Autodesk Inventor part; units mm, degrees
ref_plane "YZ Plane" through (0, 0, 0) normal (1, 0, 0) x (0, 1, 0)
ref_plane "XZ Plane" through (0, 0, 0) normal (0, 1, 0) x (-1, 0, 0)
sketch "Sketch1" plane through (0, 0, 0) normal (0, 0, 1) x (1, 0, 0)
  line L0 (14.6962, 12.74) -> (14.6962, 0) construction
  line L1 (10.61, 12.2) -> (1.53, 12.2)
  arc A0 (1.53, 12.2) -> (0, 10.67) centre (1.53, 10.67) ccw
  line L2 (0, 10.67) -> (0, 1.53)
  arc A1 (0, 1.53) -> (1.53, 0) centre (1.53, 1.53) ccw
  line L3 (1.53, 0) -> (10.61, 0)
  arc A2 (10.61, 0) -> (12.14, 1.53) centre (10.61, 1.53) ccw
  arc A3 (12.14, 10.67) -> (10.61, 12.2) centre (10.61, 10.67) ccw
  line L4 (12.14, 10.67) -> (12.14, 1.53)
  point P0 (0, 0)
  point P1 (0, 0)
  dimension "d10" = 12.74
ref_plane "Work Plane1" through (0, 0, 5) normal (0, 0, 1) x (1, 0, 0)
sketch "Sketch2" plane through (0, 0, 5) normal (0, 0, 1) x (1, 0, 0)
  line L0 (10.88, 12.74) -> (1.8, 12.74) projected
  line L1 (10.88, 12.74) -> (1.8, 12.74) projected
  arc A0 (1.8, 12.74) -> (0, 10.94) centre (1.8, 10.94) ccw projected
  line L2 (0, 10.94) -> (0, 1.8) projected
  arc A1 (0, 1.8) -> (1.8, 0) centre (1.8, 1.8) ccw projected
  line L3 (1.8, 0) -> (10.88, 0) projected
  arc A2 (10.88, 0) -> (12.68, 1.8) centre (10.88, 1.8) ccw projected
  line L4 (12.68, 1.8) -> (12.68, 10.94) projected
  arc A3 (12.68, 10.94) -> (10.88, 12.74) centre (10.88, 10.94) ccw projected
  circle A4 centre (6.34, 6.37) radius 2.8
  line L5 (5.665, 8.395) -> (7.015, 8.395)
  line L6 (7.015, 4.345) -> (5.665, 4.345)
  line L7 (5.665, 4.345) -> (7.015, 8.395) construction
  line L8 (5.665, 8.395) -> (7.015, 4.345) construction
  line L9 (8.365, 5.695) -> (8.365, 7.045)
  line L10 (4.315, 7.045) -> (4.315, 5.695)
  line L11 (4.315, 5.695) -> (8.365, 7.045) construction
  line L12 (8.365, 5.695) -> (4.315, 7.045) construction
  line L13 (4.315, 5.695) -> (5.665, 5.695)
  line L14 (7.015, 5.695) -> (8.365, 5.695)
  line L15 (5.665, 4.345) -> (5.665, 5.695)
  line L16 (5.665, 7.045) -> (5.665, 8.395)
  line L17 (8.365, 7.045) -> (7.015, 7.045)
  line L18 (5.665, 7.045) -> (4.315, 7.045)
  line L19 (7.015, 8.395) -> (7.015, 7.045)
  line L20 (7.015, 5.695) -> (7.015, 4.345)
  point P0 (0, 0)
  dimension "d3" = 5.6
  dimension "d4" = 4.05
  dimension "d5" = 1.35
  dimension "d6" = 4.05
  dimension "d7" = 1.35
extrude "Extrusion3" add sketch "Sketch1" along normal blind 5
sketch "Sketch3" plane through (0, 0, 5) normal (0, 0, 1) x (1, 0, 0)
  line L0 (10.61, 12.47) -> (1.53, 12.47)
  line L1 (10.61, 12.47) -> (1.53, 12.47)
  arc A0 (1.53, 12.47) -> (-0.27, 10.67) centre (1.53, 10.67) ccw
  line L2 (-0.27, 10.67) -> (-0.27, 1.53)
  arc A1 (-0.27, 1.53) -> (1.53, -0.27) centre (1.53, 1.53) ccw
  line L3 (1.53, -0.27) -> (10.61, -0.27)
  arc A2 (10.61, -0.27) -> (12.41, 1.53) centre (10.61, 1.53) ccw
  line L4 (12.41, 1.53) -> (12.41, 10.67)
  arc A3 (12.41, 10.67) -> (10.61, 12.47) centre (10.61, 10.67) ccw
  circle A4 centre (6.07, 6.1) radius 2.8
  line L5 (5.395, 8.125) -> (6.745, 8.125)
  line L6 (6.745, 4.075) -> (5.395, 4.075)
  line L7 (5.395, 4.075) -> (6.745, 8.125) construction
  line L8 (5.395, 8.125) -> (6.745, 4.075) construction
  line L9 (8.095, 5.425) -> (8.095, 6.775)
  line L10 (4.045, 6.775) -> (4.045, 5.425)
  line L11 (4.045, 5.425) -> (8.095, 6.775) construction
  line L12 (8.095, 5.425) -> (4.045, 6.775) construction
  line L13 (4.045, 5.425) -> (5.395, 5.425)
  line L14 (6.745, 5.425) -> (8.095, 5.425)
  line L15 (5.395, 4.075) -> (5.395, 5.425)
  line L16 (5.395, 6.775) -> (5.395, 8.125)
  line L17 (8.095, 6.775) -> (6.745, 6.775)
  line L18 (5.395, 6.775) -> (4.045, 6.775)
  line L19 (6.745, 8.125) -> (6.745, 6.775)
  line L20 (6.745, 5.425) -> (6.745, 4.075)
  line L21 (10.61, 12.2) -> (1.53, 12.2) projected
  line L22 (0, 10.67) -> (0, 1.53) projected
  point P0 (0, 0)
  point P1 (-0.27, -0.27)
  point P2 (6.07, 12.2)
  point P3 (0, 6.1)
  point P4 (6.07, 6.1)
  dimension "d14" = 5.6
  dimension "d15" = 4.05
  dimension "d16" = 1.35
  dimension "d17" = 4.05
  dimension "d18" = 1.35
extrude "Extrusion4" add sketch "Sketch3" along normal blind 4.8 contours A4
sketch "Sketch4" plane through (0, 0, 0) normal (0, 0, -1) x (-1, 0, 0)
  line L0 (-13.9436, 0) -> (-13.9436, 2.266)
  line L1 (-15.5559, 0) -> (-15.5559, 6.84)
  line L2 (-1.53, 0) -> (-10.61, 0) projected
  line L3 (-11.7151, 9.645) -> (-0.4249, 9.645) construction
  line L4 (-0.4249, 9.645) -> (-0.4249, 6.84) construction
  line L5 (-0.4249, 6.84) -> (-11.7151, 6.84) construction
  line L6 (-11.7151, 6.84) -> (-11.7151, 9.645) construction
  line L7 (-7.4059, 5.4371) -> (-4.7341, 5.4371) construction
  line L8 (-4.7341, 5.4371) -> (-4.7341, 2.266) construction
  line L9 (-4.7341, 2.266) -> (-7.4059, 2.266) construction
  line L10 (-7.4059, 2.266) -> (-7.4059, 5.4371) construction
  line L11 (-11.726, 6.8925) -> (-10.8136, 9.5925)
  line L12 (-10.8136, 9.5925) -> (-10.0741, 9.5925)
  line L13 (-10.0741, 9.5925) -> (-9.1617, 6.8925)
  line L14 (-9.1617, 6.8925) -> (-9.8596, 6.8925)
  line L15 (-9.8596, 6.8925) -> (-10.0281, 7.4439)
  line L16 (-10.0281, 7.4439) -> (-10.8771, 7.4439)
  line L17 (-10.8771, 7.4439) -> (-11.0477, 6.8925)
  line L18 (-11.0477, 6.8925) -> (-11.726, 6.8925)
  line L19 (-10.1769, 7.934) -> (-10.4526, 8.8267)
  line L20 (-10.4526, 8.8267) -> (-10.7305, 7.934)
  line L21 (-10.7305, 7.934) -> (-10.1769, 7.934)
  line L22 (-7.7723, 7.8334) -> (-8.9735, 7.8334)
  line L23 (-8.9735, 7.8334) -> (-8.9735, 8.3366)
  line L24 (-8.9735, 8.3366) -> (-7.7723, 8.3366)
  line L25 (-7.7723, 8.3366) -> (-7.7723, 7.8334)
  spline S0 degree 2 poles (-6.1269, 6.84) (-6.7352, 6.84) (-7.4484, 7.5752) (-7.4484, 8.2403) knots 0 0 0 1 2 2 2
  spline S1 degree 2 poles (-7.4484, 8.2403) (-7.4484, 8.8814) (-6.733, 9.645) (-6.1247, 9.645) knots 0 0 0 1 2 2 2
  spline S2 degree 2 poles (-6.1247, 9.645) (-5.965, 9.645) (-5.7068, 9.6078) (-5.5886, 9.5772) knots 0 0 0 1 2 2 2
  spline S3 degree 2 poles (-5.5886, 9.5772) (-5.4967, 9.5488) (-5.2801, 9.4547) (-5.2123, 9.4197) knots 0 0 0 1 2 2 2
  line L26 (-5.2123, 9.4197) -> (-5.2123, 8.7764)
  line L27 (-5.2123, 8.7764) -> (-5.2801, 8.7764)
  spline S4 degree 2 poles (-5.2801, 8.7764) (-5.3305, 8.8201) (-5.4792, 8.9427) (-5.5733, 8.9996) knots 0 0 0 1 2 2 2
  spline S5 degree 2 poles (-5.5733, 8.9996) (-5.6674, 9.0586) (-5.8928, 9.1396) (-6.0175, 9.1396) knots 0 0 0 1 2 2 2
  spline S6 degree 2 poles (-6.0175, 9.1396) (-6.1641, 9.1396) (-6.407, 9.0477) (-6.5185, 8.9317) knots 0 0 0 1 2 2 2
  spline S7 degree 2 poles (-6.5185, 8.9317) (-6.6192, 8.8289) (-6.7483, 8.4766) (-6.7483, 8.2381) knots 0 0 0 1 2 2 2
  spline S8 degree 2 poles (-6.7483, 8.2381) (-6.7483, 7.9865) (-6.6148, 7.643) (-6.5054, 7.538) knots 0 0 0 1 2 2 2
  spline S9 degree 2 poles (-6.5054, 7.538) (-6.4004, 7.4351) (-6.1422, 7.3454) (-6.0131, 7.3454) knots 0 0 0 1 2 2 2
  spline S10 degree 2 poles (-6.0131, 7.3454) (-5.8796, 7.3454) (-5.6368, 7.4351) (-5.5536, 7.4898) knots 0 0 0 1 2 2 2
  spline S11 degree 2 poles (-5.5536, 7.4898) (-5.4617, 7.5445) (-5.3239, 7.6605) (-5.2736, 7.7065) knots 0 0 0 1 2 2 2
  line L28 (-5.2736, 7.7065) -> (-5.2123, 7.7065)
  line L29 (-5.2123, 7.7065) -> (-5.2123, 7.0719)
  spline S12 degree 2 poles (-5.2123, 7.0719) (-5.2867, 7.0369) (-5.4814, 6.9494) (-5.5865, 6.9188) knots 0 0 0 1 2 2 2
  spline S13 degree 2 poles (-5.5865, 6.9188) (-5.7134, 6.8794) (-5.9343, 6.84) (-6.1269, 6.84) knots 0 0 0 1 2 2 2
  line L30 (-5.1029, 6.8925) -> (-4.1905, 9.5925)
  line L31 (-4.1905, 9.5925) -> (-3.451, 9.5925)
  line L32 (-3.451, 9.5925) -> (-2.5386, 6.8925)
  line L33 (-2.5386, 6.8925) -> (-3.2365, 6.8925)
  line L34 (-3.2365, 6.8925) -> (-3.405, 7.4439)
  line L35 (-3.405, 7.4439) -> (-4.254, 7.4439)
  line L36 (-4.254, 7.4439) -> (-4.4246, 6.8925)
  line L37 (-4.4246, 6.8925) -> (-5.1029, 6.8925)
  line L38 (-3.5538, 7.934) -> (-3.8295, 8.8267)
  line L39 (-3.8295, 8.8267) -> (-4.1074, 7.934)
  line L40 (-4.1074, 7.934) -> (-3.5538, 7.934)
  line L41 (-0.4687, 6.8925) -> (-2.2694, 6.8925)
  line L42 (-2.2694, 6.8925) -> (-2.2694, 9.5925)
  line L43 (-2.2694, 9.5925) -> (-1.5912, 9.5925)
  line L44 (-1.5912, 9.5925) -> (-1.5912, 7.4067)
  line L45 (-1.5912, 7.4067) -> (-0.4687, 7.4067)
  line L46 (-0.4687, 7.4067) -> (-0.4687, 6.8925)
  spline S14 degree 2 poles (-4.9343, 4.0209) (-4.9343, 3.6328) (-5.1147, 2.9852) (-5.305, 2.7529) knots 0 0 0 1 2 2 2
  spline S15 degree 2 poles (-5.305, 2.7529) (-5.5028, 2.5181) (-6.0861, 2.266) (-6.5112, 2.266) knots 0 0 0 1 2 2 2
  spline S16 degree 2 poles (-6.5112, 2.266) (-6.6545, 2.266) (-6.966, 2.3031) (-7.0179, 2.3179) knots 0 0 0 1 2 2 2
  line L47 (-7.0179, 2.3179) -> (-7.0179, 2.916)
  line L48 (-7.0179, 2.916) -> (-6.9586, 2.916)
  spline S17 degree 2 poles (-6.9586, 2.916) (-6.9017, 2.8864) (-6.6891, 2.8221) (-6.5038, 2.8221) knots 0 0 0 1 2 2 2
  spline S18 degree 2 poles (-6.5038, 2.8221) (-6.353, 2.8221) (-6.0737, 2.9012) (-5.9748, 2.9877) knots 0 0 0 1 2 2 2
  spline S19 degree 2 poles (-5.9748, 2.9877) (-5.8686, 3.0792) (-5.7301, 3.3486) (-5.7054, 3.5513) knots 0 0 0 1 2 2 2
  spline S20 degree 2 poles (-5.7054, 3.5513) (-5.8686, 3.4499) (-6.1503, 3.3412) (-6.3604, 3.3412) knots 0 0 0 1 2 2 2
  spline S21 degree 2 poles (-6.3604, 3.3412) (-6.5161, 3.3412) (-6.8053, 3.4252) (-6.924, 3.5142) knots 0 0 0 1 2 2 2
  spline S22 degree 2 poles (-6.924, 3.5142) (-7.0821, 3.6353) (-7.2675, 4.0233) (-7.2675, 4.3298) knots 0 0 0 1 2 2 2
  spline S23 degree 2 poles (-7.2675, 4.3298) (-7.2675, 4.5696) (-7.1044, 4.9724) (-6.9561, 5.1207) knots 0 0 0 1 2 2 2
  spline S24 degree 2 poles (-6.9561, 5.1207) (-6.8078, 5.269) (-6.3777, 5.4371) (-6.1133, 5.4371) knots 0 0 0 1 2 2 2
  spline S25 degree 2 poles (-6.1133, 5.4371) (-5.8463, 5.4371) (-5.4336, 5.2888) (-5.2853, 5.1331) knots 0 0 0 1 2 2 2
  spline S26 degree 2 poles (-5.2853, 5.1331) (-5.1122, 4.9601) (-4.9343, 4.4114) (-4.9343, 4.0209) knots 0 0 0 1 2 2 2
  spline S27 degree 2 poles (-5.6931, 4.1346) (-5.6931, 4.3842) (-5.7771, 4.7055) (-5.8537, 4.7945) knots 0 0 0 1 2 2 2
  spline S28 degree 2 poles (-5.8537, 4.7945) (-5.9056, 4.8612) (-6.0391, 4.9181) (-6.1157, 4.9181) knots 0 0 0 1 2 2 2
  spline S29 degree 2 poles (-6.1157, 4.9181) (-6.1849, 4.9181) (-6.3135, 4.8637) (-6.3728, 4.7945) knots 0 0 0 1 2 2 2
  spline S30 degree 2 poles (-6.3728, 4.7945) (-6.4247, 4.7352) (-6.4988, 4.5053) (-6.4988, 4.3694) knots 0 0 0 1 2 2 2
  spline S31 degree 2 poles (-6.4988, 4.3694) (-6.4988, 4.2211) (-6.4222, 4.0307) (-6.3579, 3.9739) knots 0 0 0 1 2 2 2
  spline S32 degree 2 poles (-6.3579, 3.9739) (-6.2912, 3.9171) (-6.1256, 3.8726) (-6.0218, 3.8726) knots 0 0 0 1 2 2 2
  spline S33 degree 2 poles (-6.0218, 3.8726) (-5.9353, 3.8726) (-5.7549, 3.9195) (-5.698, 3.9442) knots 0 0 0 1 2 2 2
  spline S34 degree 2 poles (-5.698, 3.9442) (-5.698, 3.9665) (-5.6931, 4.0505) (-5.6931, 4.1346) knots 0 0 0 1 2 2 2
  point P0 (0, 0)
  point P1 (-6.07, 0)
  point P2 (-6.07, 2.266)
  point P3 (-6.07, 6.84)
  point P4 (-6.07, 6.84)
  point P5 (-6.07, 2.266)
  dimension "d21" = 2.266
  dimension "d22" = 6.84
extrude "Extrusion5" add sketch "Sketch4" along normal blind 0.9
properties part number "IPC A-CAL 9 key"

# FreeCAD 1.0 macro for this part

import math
import FreeCAD as App
import Part
import Sketcher
Q = App.Units.Quantity

doc = App.newDocument("Part")
body = doc.addObject("PartDesign::Body", "Body")

# Sketch on XY plane
sketch1 = body.newObject("Sketcher::SketchObject", "Sketch")
sketch1.AttachmentSupport = (doc.getObject("XY_Plane"), [""])
sketch1.MapMode = "FlatFace"
sketch1.addGeometry([
    Part.ArcOfCircle(Part.Circle(App.Vector(10.61, 10.67, 0), App.Vector(0, 0, 1), 1.53), math.radians(0), math.radians(90)),  # 0
    Part.LineSegment(App.Vector(10.61, 12.2, 0), App.Vector(1.53, 12.2, 0)),  # 1
    Part.ArcOfCircle(Part.Circle(App.Vector(1.53, 10.67, 0), App.Vector(0, 0, 1), 1.53), math.radians(90), math.radians(180)),  # 2
    Part.LineSegment(App.Vector(0, 10.67, 0), App.Vector(0, 1.53, 0)),  # 3
    Part.ArcOfCircle(Part.Circle(App.Vector(1.53, 1.53, 0), App.Vector(0, 0, 1), 1.53), math.radians(180), math.radians(270)),  # 4
    Part.LineSegment(App.Vector(1.53, 0, 0), App.Vector(10.61, 0, 0)),  # 5
    Part.ArcOfCircle(Part.Circle(App.Vector(10.61, 1.53, 0), App.Vector(0, 0, 1), 1.53), math.radians(-90), math.radians(0)),  # 6
    Part.LineSegment(App.Vector(12.14, 1.53, 0), App.Vector(12.14, 10.67, 0)),  # 7
], False)
sketch1.addConstraint([
    Sketcher.Constraint("Tangent", 0, 2, 1, 1),
    Sketcher.Constraint("Tangent", 1, 2, 2, 1),
    Sketcher.Constraint("Tangent", 2, 2, 3, 1),
    Sketcher.Constraint("Tangent", 3, 2, 4, 1),
    Sketcher.Constraint("Tangent", 4, 2, 5, 1),
    Sketcher.Constraint("Tangent", 5, 2, 6, 1),
    Sketcher.Constraint("Tangent", 6, 2, 7, 1),
    Sketcher.Constraint("Tangent", 7, 2, 0, 1),
    Sketcher.Constraint("Horizontal", 1),
    Sketcher.Constraint("Vertical", 3),
    Sketcher.Constraint("Horizontal", 5),
    Sketcher.Constraint("Vertical", 7),
    Sketcher.Constraint("Equal", 0, 2),
    Sketcher.Constraint("Equal", 2, 4),
    Sketcher.Constraint("Equal", 4, 6),
    Sketcher.Constraint("PointOnObject", 2, 2, -2),
    Sketcher.Constraint("PointOnObject", 4, 2, -1),
    Sketcher.Constraint("Radius", 0, Q("1.53 mm")),
    Sketcher.Constraint("DistanceX", 1, 2, 1, 1, Q("9.08 mm")),
    Sketcher.Constraint("DistanceY", 3, 2, 3, 1, Q("9.14 mm")),
])
pad1 = body.newObject("PartDesign::Pad", "Pad")
pad1.Profile = sketch1
pad1.Length = 5

# Sketch on XY plane
sketch2 = body.newObject("Sketcher::SketchObject", "Sketch001")
sketch2.AttachmentSupport = (doc.getObject("XY_Plane"), [""])
sketch2.MapMode = "FlatFace"
sketch2.AttachmentOffset = App.Placement(App.Vector(0, 0, 5), App.Rotation())
sketch2.addGeometry([
    Part.Circle(App.Vector(6.07, 6.1, 0), App.Vector(0, 0, 1), 2.8),  # 0
    Part.LineSegment(App.Vector(5.395, 6.775, 0), App.Vector(5.395, 8.125, 0)),  # 1
    Part.LineSegment(App.Vector(5.395, 8.125, 0), App.Vector(6.745, 8.125, 0)),  # 2
    Part.LineSegment(App.Vector(6.745, 8.125, 0), App.Vector(6.745, 6.775, 0)),  # 3
    Part.LineSegment(App.Vector(6.745, 6.775, 0), App.Vector(8.095, 6.775, 0)),  # 4
    Part.LineSegment(App.Vector(8.095, 6.775, 0), App.Vector(8.095, 5.425, 0)),  # 5
    Part.LineSegment(App.Vector(8.095, 5.425, 0), App.Vector(6.745, 5.425, 0)),  # 6
    Part.LineSegment(App.Vector(6.745, 5.425, 0), App.Vector(6.745, 4.075, 0)),  # 7
    Part.LineSegment(App.Vector(6.745, 4.075, 0), App.Vector(5.395, 4.075, 0)),  # 8
    Part.LineSegment(App.Vector(5.395, 4.075, 0), App.Vector(5.395, 5.425, 0)),  # 9
    Part.LineSegment(App.Vector(5.395, 5.425, 0), App.Vector(4.045, 5.425, 0)),  # 10
    Part.LineSegment(App.Vector(4.045, 5.425, 0), App.Vector(4.045, 6.775, 0)),  # 11
    Part.LineSegment(App.Vector(4.045, 6.775, 0), App.Vector(5.395, 6.775, 0)),  # 12
], False)
sketch2.addConstraint([
    Sketcher.Constraint("Coincident", 1, 2, 2, 1),
    Sketcher.Constraint("Coincident", 2, 2, 3, 1),
    Sketcher.Constraint("Coincident", 3, 2, 4, 1),
    Sketcher.Constraint("Coincident", 4, 2, 5, 1),
    Sketcher.Constraint("Coincident", 5, 2, 6, 1),
    Sketcher.Constraint("Coincident", 6, 2, 7, 1),
    Sketcher.Constraint("Coincident", 7, 2, 8, 1),
    Sketcher.Constraint("Coincident", 8, 2, 9, 1),
    Sketcher.Constraint("Coincident", 9, 2, 10, 1),
    Sketcher.Constraint("Coincident", 10, 2, 11, 1),
    Sketcher.Constraint("Coincident", 11, 2, 12, 1),
    Sketcher.Constraint("Coincident", 12, 2, 1, 1),
    Sketcher.Constraint("Vertical", 1),
    Sketcher.Constraint("Horizontal", 2),
    Sketcher.Constraint("Vertical", 3),
    Sketcher.Constraint("Horizontal", 4),
    Sketcher.Constraint("Vertical", 5),
    Sketcher.Constraint("Horizontal", 6),
    Sketcher.Constraint("Vertical", 7),
    Sketcher.Constraint("Horizontal", 8),
    Sketcher.Constraint("Vertical", 9),
    Sketcher.Constraint("Horizontal", 10),
    Sketcher.Constraint("Vertical", 11),
    Sketcher.Constraint("Horizontal", 12),
    Sketcher.Constraint("Horizontal", 6, 2, 9, 2),
    Sketcher.Constraint("Horizontal", 4, 2, 11, 2),
    Sketcher.Constraint("Vertical", 3, 2, 6, 2),
    Sketcher.Constraint("Vertical", 1, 2, 8, 2),
    Sketcher.Constraint("Equal", 2, 4),
    Sketcher.Constraint("Equal", 8, 10),
    Sketcher.Constraint("Equal", 12, 1),
    Sketcher.Constraint("Equal", 3, 5),
    Sketcher.Constraint("Equal", 5, 7),
    Sketcher.Constraint("Diameter", 0, Q("5.6 mm")),
    Sketcher.Constraint("DistanceX", 2, 1, 2, 2, Q("1.35 mm")),
    Sketcher.Constraint("DistanceY", -1, 1, 0, 3, Q("6.1 mm")),
    Sketcher.Constraint("DistanceX", -1, 1, 0, 3, Q("6.07 mm")),
    Sketcher.Constraint("DistanceX", -1, 1, 1, 2, Q("5.395 mm")),
    Sketcher.Constraint("DistanceY", -1, 1, 1, 2, Q("8.125 mm")),
])
pad2 = body.newObject("PartDesign::Pad", "Pad001")
pad2.Profile = sketch2
pad2.Length = 4.8

# Sketch on XY plane
sketch3 = body.newObject("Sketcher::SketchObject", "Sketch002")
sketch3.AttachmentSupport = (doc.getObject("XY_Plane"), [""])
sketch3.MapMode = "FlatFace"
sketch3.addGeometry([
    Part.LineSegment(App.Vector(10.8136, 9.5925, 0), App.Vector(11.726, 6.8925, 0)),  # 0
    Part.LineSegment(App.Vector(11.726, 6.8925, 0), App.Vector(11.0477, 6.8925, 0)),  # 1
    Part.LineSegment(App.Vector(11.0477, 6.8925, 0), App.Vector(10.8771, 7.4439, 0)),  # 2
    Part.LineSegment(App.Vector(10.8771, 7.4439, 0), App.Vector(10.0281, 7.4439, 0)),  # 3
    Part.LineSegment(App.Vector(10.0281, 7.4439, 0), App.Vector(9.8596, 6.8925, 0)),  # 4
    Part.LineSegment(App.Vector(9.8596, 6.8925, 0), App.Vector(9.1617, 6.8925, 0)),  # 5
    Part.LineSegment(App.Vector(9.1617, 6.8925, 0), App.Vector(10.0741, 9.5925, 0)),  # 6
    Part.LineSegment(App.Vector(10.0741, 9.5925, 0), App.Vector(10.8136, 9.5925, 0)),  # 7
    Part.LineSegment(App.Vector(10.4526, 8.8267, 0), App.Vector(10.1769, 7.934, 0)),  # 8
    Part.LineSegment(App.Vector(10.1769, 7.934, 0), App.Vector(10.7305, 7.934, 0)),  # 9
    Part.LineSegment(App.Vector(10.7305, 7.934, 0), App.Vector(10.4526, 8.8267, 0)),  # 10
    Part.LineSegment(App.Vector(8.9735, 7.8334, 0), App.Vector(7.7723, 7.8334, 0)),  # 11
    Part.LineSegment(App.Vector(7.7723, 7.8334, 0), App.Vector(7.7723, 8.3366, 0)),  # 12
    Part.LineSegment(App.Vector(7.7723, 8.3366, 0), App.Vector(8.9735, 8.3366, 0)),  # 13
    Part.LineSegment(App.Vector(8.9735, 8.3366, 0), App.Vector(8.9735, 7.8334, 0)),  # 14
    Part.BSplineCurve([App.Vector(6.1269, 6.84, 0), App.Vector(6.7352, 6.84, 0), App.Vector(7.4484, 7.5752, 0), App.Vector(7.4484, 8.2403, 0)], [3, 1, 3], [0, 1, 2], False, 2, [1, 1, 1, 1], False),  # 15
    Part.BSplineCurve([App.Vector(5.5865, 6.9188, 0), App.Vector(5.7134, 6.8794, 0), App.Vector(5.9343, 6.84, 0), App.Vector(6.1269, 6.84, 0)], [3, 1, 3], [0, 1, 2], False, 2, [1, 1, 1, 1], False),  # 16
    Part.BSplineCurve([App.Vector(5.2123, 7.0719, 0), App.Vector(5.2867, 7.0369, 0), App.Vector(5.4814, 6.9494, 0), App.Vector(5.5865, 6.9188, 0)], [3, 1, 3], [0, 1, 2], False, 2, [1, 1, 1, 1], False),  # 17
    Part.LineSegment(App.Vector(5.2123, 7.0719, 0), App.Vector(5.2123, 7.7065, 0)),  # 18
    Part.LineSegment(App.Vector(5.2123, 7.7065, 0), App.Vector(5.2736, 7.7065, 0)),  # 19
    Part.BSplineCurve([App.Vector(5.5536, 7.4898, 0), App.Vector(5.4617, 7.5445, 0), App.Vector(5.3239, 7.6605, 0), App.Vector(5.2736, 7.7065, 0)], [3, 1, 3], [0, 1, 2], False, 2, [1, 1, 1, 1], False),  # 20
    Part.BSplineCurve([App.Vector(6.0131, 7.3454, 0), App.Vector(5.8796, 7.3454, 0), App.Vector(5.6368, 7.4351, 0), App.Vector(5.5536, 7.4898, 0)], [3, 1, 3], [0, 1, 2], False, 2, [1, 1, 1, 1], False),  # 21
    Part.BSplineCurve([App.Vector(6.5054, 7.538, 0), App.Vector(6.4004, 7.4351, 0), App.Vector(6.1422, 7.3454, 0), App.Vector(6.0131, 7.3454, 0)], [3, 1, 3], [0, 1, 2], False, 2, [1, 1, 1, 1], False),  # 22
    Part.BSplineCurve([App.Vector(6.7483, 8.2381, 0), App.Vector(6.7483, 7.9865, 0), App.Vector(6.6148, 7.643, 0), App.Vector(6.5054, 7.538, 0)], [3, 1, 3], [0, 1, 2], False, 2, [1, 1, 1, 1], False),  # 23
    Part.BSplineCurve([App.Vector(6.5185, 8.9317, 0), App.Vector(6.6192, 8.8289, 0), App.Vector(6.7483, 8.4766, 0), App.Vector(6.7483, 8.2381, 0)], [3, 1, 3], [0, 1, 2], False, 2, [1, 1, 1, 1], False),  # 24
    Part.BSplineCurve([App.Vector(6.0175, 9.1396, 0), App.Vector(6.1641, 9.1396, 0), App.Vector(6.407, 9.0477, 0), App.Vector(6.5185, 8.9317, 0)], [3, 1, 3], [0, 1, 2], False, 2, [1, 1, 1, 1], False),  # 25
    Part.BSplineCurve([App.Vector(5.5733, 8.9996, 0), App.Vector(5.6674, 9.0586, 0), App.Vector(5.8928, 9.1396, 0), App.Vector(6.0175, 9.1396, 0)], [3, 1, 3], [0, 1, 2], False, 2, [1, 1, 1, 1], False),  # 26
    Part.BSplineCurve([App.Vector(5.2801, 8.7764, 0), App.Vector(5.3305, 8.8201, 0), App.Vector(5.4792, 8.9427, 0), App.Vector(5.5733, 8.9996, 0)], [3, 1, 3], [0, 1, 2], False, 2, [1, 1, 1, 1], False),  # 27
    Part.LineSegment(App.Vector(5.2801, 8.7764, 0), App.Vector(5.2123, 8.7764, 0)),  # 28
    Part.LineSegment(App.Vector(5.2123, 8.7764, 0), App.Vector(5.2123, 9.4197, 0)),  # 29
    Part.BSplineCurve([App.Vector(5.5886, 9.5772, 0), App.Vector(5.4967, 9.5488, 0), App.Vector(5.2801, 9.4547, 0), App.Vector(5.2123, 9.4197, 0)], [3, 1, 3], [0, 1, 2], False, 2, [1, 1, 1, 1], False),  # 30
    Part.BSplineCurve([App.Vector(6.1247, 9.645, 0), App.Vector(5.965, 9.645, 0), App.Vector(5.7068, 9.6078, 0), App.Vector(5.5886, 9.5772, 0)], [3, 1, 3], [0, 1, 2], False, 2, [1, 1, 1, 1], False),  # 31
    Part.BSplineCurve([App.Vector(7.4484, 8.2403, 0), App.Vector(7.4484, 8.8814, 0), App.Vector(6.733, 9.645, 0), App.Vector(6.1247, 9.645, 0)], [3, 1, 3], [0, 1, 2], False, 2, [1, 1, 1, 1], False),  # 32
    Part.LineSegment(App.Vector(4.1905, 9.5925, 0), App.Vector(5.1029, 6.8925, 0)),  # 33
    Part.LineSegment(App.Vector(5.1029, 6.8925, 0), App.Vector(4.4246, 6.8925, 0)),  # 34
    Part.LineSegment(App.Vector(4.4246, 6.8925, 0), App.Vector(4.254, 7.4439, 0)),  # 35
    Part.LineSegment(App.Vector(4.254, 7.4439, 0), App.Vector(3.405, 7.4439, 0)),  # 36
    Part.LineSegment(App.Vector(3.405, 7.4439, 0), App.Vector(3.2365, 6.8925, 0)),  # 37
    Part.LineSegment(App.Vector(3.2365, 6.8925, 0), App.Vector(2.5386, 6.8925, 0)),  # 38
    Part.LineSegment(App.Vector(2.5386, 6.8925, 0), App.Vector(3.451, 9.5925, 0)),  # 39
    Part.LineSegment(App.Vector(3.451, 9.5925, 0), App.Vector(4.1905, 9.5925, 0)),  # 40
    Part.LineSegment(App.Vector(3.8295, 8.8267, 0), App.Vector(3.5538, 7.934, 0)),  # 41
    Part.LineSegment(App.Vector(3.5538, 7.934, 0), App.Vector(4.1074, 7.934, 0)),  # 42
    Part.LineSegment(App.Vector(4.1074, 7.934, 0), App.Vector(3.8295, 8.8267, 0)),  # 43
    Part.LineSegment(App.Vector(2.2694, 6.8925, 0), App.Vector(0.4687, 6.8925, 0)),  # 44
    Part.LineSegment(App.Vector(0.4687, 6.8925, 0), App.Vector(0.4687, 7.4067, 0)),  # 45
    Part.LineSegment(App.Vector(0.4687, 7.4067, 0), App.Vector(1.5912, 7.4067, 0)),  # 46
    Part.LineSegment(App.Vector(1.5912, 7.4067, 0), App.Vector(1.5912, 9.5925, 0)),  # 47
    Part.LineSegment(App.Vector(1.5912, 9.5925, 0), App.Vector(2.2694, 9.5925, 0)),  # 48
    Part.LineSegment(App.Vector(2.2694, 9.5925, 0), App.Vector(2.2694, 6.8925, 0)),  # 49
    Part.BSplineCurve([App.Vector(4.9343, 4.0209, 0), App.Vector(4.9343, 3.6328, 0), App.Vector(5.1147, 2.9852, 0), App.Vector(5.305, 2.7529, 0)], [3, 1, 3], [0, 1, 2], False, 2, [1, 1, 1, 1], False),  # 50
    Part.BSplineCurve([App.Vector(5.2853, 5.1331, 0), App.Vector(5.1122, 4.9601, 0), App.Vector(4.9343, 4.4114, 0), App.Vector(4.9343, 4.0209, 0)], [3, 1, 3], [0, 1, 2], False, 2, [1, 1, 1, 1], False),  # 51
    Part.BSplineCurve([App.Vector(6.1133, 5.4371, 0), App.Vector(5.8463, 5.4371, 0), App.Vector(5.4336, 5.2888, 0), App.Vector(5.2853, 5.1331, 0)], [3, 1, 3], [0, 1, 2], False, 2, [1, 1, 1, 1], False),  # 52
    Part.BSplineCurve([App.Vector(6.9561, 5.1207, 0), App.Vector(6.8078, 5.269, 0), App.Vector(6.3777, 5.4371, 0), App.Vector(6.1133, 5.4371, 0)], [3, 1, 3], [0, 1, 2], False, 2, [1, 1, 1, 1], False),  # 53
    Part.BSplineCurve([App.Vector(7.2675, 4.3298, 0), App.Vector(7.2675, 4.5696, 0), App.Vector(7.1044, 4.9724, 0), App.Vector(6.9561, 5.1207, 0)], [3, 1, 3], [0, 1, 2], False, 2, [1, 1, 1, 1], False),  # 54
    Part.BSplineCurve([App.Vector(6.924, 3.5142, 0), App.Vector(7.0821, 3.6353, 0), App.Vector(7.2675, 4.0233, 0), App.Vector(7.2675, 4.3298, 0)], [3, 1, 3], [0, 1, 2], False, 2, [1, 1, 1, 1], False),  # 55
    Part.BSplineCurve([App.Vector(6.3604, 3.3412, 0), App.Vector(6.5161, 3.3412, 0), App.Vector(6.8053, 3.4252, 0), App.Vector(6.924, 3.5142, 0)], [3, 1, 3], [0, 1, 2], False, 2, [1, 1, 1, 1], False),  # 56
    Part.BSplineCurve([App.Vector(5.7054, 3.5513, 0), App.Vector(5.8686, 3.4499, 0), App.Vector(6.1503, 3.3412, 0), App.Vector(6.3604, 3.3412, 0)], [3, 1, 3], [0, 1, 2], False, 2, [1, 1, 1, 1], False),  # 57
    Part.BSplineCurve([App.Vector(5.9748, 2.9877, 0), App.Vector(5.8686, 3.0792, 0), App.Vector(5.7301, 3.3486, 0), App.Vector(5.7054, 3.5513, 0)], [3, 1, 3], [0, 1, 2], False, 2, [1, 1, 1, 1], False),  # 58
    Part.BSplineCurve([App.Vector(6.5038, 2.8221, 0), App.Vector(6.353, 2.8221, 0), App.Vector(6.0737, 2.9012, 0), App.Vector(5.9748, 2.9877, 0)], [3, 1, 3], [0, 1, 2], False, 2, [1, 1, 1, 1], False),  # 59
    Part.BSplineCurve([App.Vector(6.9586, 2.916, 0), App.Vector(6.9017, 2.8864, 0), App.Vector(6.6891, 2.8221, 0), App.Vector(6.5038, 2.8221, 0)], [3, 1, 3], [0, 1, 2], False, 2, [1, 1, 1, 1], False),  # 60
    Part.LineSegment(App.Vector(6.9586, 2.916, 0), App.Vector(7.0179, 2.916, 0)),  # 61
    Part.LineSegment(App.Vector(7.0179, 2.916, 0), App.Vector(7.0179, 2.3179, 0)),  # 62
    Part.BSplineCurve([App.Vector(6.5112, 2.266, 0), App.Vector(6.6545, 2.266, 0), App.Vector(6.966, 2.3031, 0), App.Vector(7.0179, 2.3179, 0)], [3, 1, 3], [0, 1, 2], False, 2, [1, 1, 1, 1], False),  # 63
    Part.BSplineCurve([App.Vector(5.305, 2.7529, 0), App.Vector(5.5028, 2.5181, 0), App.Vector(6.0861, 2.266, 0), App.Vector(6.5112, 2.266, 0)], [3, 1, 3], [0, 1, 2], False, 2, [1, 1, 1, 1], False),  # 64
    Part.BSplineCurve([App.Vector(5.6931, 4.1346, 0), App.Vector(5.6931, 4.3842, 0), App.Vector(5.7771, 4.7055, 0), App.Vector(5.8537, 4.7945, 0)], [3, 1, 3], [0, 1, 2], False, 2, [1, 1, 1, 1], False),  # 65
    Part.BSplineCurve([App.Vector(5.698, 3.9442, 0), App.Vector(5.698, 3.9665, 0), App.Vector(5.6931, 4.0505, 0), App.Vector(5.6931, 4.1346, 0)], [3, 1, 3], [0, 1, 2], False, 2, [1, 1, 1, 1], False),  # 66
    Part.BSplineCurve([App.Vector(6.0218, 3.8726, 0), App.Vector(5.9353, 3.8726, 0), App.Vector(5.7549, 3.9195, 0), App.Vector(5.698, 3.9442, 0)], [3, 1, 3], [0, 1, 2], False, 2, [1, 1, 1, 1], False),  # 67
    Part.BSplineCurve([App.Vector(6.3579, 3.9739, 0), App.Vector(6.2912, 3.9171, 0), App.Vector(6.1256, 3.8726, 0), App.Vector(6.0218, 3.8726, 0)], [3, 1, 3], [0, 1, 2], False, 2, [1, 1, 1, 1], False),  # 68
    Part.BSplineCurve([App.Vector(6.4988, 4.3694, 0), App.Vector(6.4988, 4.2211, 0), App.Vector(6.4222, 4.0307, 0), App.Vector(6.3579, 3.9739, 0)], [3, 1, 3], [0, 1, 2], False, 2, [1, 1, 1, 1], False),  # 69
    Part.BSplineCurve([App.Vector(6.3728, 4.7945, 0), App.Vector(6.4247, 4.7352, 0), App.Vector(6.4988, 4.5053, 0), App.Vector(6.4988, 4.3694, 0)], [3, 1, 3], [0, 1, 2], False, 2, [1, 1, 1, 1], False),  # 70
    Part.BSplineCurve([App.Vector(6.1157, 4.9181, 0), App.Vector(6.1849, 4.9181, 0), App.Vector(6.3135, 4.8637, 0), App.Vector(6.3728, 4.7945, 0)], [3, 1, 3], [0, 1, 2], False, 2, [1, 1, 1, 1], False),  # 71
    Part.BSplineCurve([App.Vector(5.8537, 4.7945, 0), App.Vector(5.9056, 4.8612, 0), App.Vector(6.0391, 4.9181, 0), App.Vector(6.1157, 4.9181, 0)], [3, 1, 3], [0, 1, 2], False, 2, [1, 1, 1, 1], False),  # 72
], False)
sketch3.addConstraint([
    Sketcher.Constraint("Block", 15),
    Sketcher.Constraint("Block", 16),
    Sketcher.Constraint("Block", 17),
    Sketcher.Constraint("Block", 20),
    Sketcher.Constraint("Block", 21),
    Sketcher.Constraint("Block", 22),
    Sketcher.Constraint("Block", 23),
    Sketcher.Constraint("Block", 24),
    Sketcher.Constraint("Block", 25),
    Sketcher.Constraint("Block", 26),
    Sketcher.Constraint("Block", 27),
    Sketcher.Constraint("Block", 30),
    Sketcher.Constraint("Block", 31),
    Sketcher.Constraint("Block", 32),
    Sketcher.Constraint("Block", 50),
    Sketcher.Constraint("Block", 51),
    Sketcher.Constraint("Block", 52),
    Sketcher.Constraint("Block", 53),
    Sketcher.Constraint("Block", 54),
    Sketcher.Constraint("Block", 55),
    Sketcher.Constraint("Block", 56),
    Sketcher.Constraint("Block", 57),
    Sketcher.Constraint("Block", 58),
    Sketcher.Constraint("Block", 59),
    Sketcher.Constraint("Block", 60),
    Sketcher.Constraint("Block", 63),
    Sketcher.Constraint("Block", 64),
    Sketcher.Constraint("Block", 65),
    Sketcher.Constraint("Block", 66),
    Sketcher.Constraint("Block", 67),
    Sketcher.Constraint("Block", 68),
    Sketcher.Constraint("Block", 69),
    Sketcher.Constraint("Block", 70),
    Sketcher.Constraint("Block", 71),
    Sketcher.Constraint("Block", 72),
    Sketcher.Constraint("Coincident", 0, 2, 1, 1),
    Sketcher.Constraint("Coincident", 1, 2, 2, 1),
    Sketcher.Constraint("Coincident", 2, 2, 3, 1),
    Sketcher.Constraint("Coincident", 3, 2, 4, 1),
    Sketcher.Constraint("Coincident", 4, 2, 5, 1),
    Sketcher.Constraint("Coincident", 5, 2, 6, 1),
    Sketcher.Constraint("Coincident", 6, 2, 7, 1),
    Sketcher.Constraint("Coincident", 7, 2, 0, 1),
    Sketcher.Constraint("Coincident", 8, 2, 9, 1),
    Sketcher.Constraint("Coincident", 9, 2, 10, 1),
    Sketcher.Constraint("Coincident", 10, 2, 8, 1),
    Sketcher.Constraint("Coincident", 11, 2, 12, 1),
    Sketcher.Constraint("Coincident", 12, 2, 13, 1),
    Sketcher.Constraint("Coincident", 13, 2, 14, 1),
    Sketcher.Constraint("Coincident", 14, 2, 11, 1),
    Sketcher.Constraint("Coincident", 17, 1, 18, 1),
    Sketcher.Constraint("Coincident", 18, 2, 19, 1),
    Sketcher.Constraint("Coincident", 19, 2, 20, 2),
    Sketcher.Constraint("Coincident", 27, 1, 28, 1),
    Sketcher.Constraint("Coincident", 28, 2, 29, 1),
    Sketcher.Constraint("Coincident", 29, 2, 30, 2),
    Sketcher.Constraint("Coincident", 33, 2, 34, 1),
    Sketcher.Constraint("Coincident", 34, 2, 35, 1),
    Sketcher.Constraint("Coincident", 35, 2, 36, 1),
    Sketcher.Constraint("Coincident", 36, 2, 37, 1),
    Sketcher.Constraint("Coincident", 37, 2, 38, 1),
    Sketcher.Constraint("Coincident", 38, 2, 39, 1),
    Sketcher.Constraint("Coincident", 39, 2, 40, 1),
    Sketcher.Constraint("Coincident", 40, 2, 33, 1),
    Sketcher.Constraint("Coincident", 41, 2, 42, 1),
    Sketcher.Constraint("Coincident", 42, 2, 43, 1),
    Sketcher.Constraint("Coincident", 43, 2, 41, 1),
    Sketcher.Constraint("Coincident", 44, 2, 45, 1),
    Sketcher.Constraint("Coincident", 45, 2, 46, 1),
    Sketcher.Constraint("Coincident", 46, 2, 47, 1),
    Sketcher.Constraint("Coincident", 47, 2, 48, 1),
    Sketcher.Constraint("Coincident", 48, 2, 49, 1),
    Sketcher.Constraint("Coincident", 49, 2, 44, 1),
    Sketcher.Constraint("Coincident", 60, 1, 61, 1),
    Sketcher.Constraint("Coincident", 61, 2, 62, 1),
    Sketcher.Constraint("Coincident", 62, 2, 63, 2),
    Sketcher.Constraint("Horizontal", 1),
    Sketcher.Constraint("Horizontal", 3),
    Sketcher.Constraint("Horizontal", 5),
    Sketcher.Constraint("Horizontal", 7),
    Sketcher.Constraint("Horizontal", 9),
    Sketcher.Constraint("Horizontal", 11),
    Sketcher.Constraint("Vertical", 12),
    Sketcher.Constraint("Horizontal", 13),
    Sketcher.Constraint("Vertical", 14),
    Sketcher.Constraint("Vertical", 18),
    Sketcher.Constraint("Horizontal", 19),
    Sketcher.Constraint("Horizontal", 28),
    Sketcher.Constraint("Vertical", 29),
    Sketcher.Constraint("Horizontal", 34),
    Sketcher.Constraint("Horizontal", 36),
    Sketcher.Constraint("Horizontal", 38),
    Sketcher.Constraint("Horizontal", 40),
    Sketcher.Constraint("Horizontal", 42),
    Sketcher.Constraint("Horizontal", 44),
    Sketcher.Constraint("Vertical", 45),
    Sketcher.Constraint("Horizontal", 46),
    Sketcher.Constraint("Vertical", 47),
    Sketcher.Constraint("Horizontal", 48),
    Sketcher.Constraint("Vertical", 49),
    Sketcher.Constraint("Horizontal", 61),
    Sketcher.Constraint("Vertical", 62),
    Sketcher.Constraint("Parallel", 0, 33),
    Sketcher.Constraint("Parallel", 2, 35),
    Sketcher.Constraint("Parallel", 4, 37),
    Sketcher.Constraint("Parallel", 6, 39),
    Sketcher.Constraint("Parallel", 8, 41),
    Sketcher.Constraint("Parallel", 10, 43),
    Sketcher.Constraint("Horizontal", 1, 2, 4, 2),
    Sketcher.Constraint("Horizontal", 5, 2, 33, 2),
    Sketcher.Constraint("Horizontal", 3, 2, 35, 2),
    Sketcher.Constraint("Horizontal", 34, 2, 37, 2),
    Sketcher.Constraint("Horizontal", 7, 2, 39, 2),
    Sketcher.Constraint("Horizontal", 9, 2, 41, 2),
    Sketcher.Constraint("Horizontal", 10, 2, 43, 2),
    Sketcher.Constraint("Horizontal", 38, 2, 44, 2),
    Sketcher.Constraint("Horizontal", 40, 2, 47, 2),
    Sketcher.Constraint("Equal", 1, 34),
    Sketcher.Constraint("Equal", 3, 36),
    Sketcher.Constraint("Equal", 5, 38),
    Sketcher.Constraint("Equal", 34, 48),
    Sketcher.Constraint("Equal", 0, 6),
    Sketcher.Constraint("DistanceY", 49, 2, 49, 1, Q("2.7 mm")),
    Sketcher.Constraint("DistanceX", 19, 2, 14, 2, Q("3.7 mm")),
    Sketcher.Constraint("Distance", 0, Q("2.85 mm")),
    Sketcher.Constraint("DistanceX", 3, 2, 3, 1, Q("0.849 mm")),
    Sketcher.Constraint("DistanceX", 5, 2, 5, 1, Q("0.698 mm")),
    Sketcher.Constraint("DistanceY", 3, 2, 8, 2, Q("0.49 mm")),
    Sketcher.Constraint("DistanceX", 18, 2, 11, 2, Q("2.56 mm")),
    Sketcher.Constraint("DistanceY", 18, 2, 12, 2, Q("0.63 mm")),
    Sketcher.Constraint("DistanceX", 44, 2, 38, 2, Q("2.07 mm")),
    Sketcher.Constraint("DistanceX", 48, 2, 43, 2, Q("1.56 mm")),
    Sketcher.Constraint("Distance", 10, Q("0.935 mm")),
    Sketcher.Constraint("DistanceX", 1, 2, 1, 1, Q("0.6783 mm")),
    Sketcher.Constraint("DistanceX", 7, 1, 7, 2, Q("0.7395 mm")),
    Sketcher.Constraint("DistanceX", 9, 1, 9, 2, Q("0.5536 mm")),
    Sketcher.Constraint("DistanceX", 44, 2, 44, 1, Q("1.8007 mm")),
    Sketcher.Constraint("DistanceY", 12, 1, 12, 2, Q("0.5032 mm")),
    Sketcher.Constraint("DistanceY", 45, 1, 45, 2, Q("0.5142 mm")),
    Sketcher.Constraint("DistanceX", -1, 1, 0, 2, Q("11.726 mm")),
    Sketcher.Constraint("DistanceX", -1, 1, 2, 2, Q("10.877 mm")),
    Sketcher.Constraint("DistanceY", -1, 1, 2, 2, Q("7.444 mm")),
    Sketcher.Constraint("DistanceX", -1, 1, 8, 2, Q("10.177 mm")),
    Sketcher.Constraint("DistanceX", -1, 1, 33, 2, Q("5.103 mm")),
    Sketcher.Constraint("DistanceX", 10, 2, 7, 2, Q("0.361 mm")),
    Sketcher.Constraint("DistanceY", 5, 2, 11, 2, Q("0.941 mm")),
])
pad3 = body.newObject("PartDesign::Pad", "Pad002")
pad3.Profile = sketch3
pad3.Length = 0.9
pad3.Reversed = True

doc.recompute()
